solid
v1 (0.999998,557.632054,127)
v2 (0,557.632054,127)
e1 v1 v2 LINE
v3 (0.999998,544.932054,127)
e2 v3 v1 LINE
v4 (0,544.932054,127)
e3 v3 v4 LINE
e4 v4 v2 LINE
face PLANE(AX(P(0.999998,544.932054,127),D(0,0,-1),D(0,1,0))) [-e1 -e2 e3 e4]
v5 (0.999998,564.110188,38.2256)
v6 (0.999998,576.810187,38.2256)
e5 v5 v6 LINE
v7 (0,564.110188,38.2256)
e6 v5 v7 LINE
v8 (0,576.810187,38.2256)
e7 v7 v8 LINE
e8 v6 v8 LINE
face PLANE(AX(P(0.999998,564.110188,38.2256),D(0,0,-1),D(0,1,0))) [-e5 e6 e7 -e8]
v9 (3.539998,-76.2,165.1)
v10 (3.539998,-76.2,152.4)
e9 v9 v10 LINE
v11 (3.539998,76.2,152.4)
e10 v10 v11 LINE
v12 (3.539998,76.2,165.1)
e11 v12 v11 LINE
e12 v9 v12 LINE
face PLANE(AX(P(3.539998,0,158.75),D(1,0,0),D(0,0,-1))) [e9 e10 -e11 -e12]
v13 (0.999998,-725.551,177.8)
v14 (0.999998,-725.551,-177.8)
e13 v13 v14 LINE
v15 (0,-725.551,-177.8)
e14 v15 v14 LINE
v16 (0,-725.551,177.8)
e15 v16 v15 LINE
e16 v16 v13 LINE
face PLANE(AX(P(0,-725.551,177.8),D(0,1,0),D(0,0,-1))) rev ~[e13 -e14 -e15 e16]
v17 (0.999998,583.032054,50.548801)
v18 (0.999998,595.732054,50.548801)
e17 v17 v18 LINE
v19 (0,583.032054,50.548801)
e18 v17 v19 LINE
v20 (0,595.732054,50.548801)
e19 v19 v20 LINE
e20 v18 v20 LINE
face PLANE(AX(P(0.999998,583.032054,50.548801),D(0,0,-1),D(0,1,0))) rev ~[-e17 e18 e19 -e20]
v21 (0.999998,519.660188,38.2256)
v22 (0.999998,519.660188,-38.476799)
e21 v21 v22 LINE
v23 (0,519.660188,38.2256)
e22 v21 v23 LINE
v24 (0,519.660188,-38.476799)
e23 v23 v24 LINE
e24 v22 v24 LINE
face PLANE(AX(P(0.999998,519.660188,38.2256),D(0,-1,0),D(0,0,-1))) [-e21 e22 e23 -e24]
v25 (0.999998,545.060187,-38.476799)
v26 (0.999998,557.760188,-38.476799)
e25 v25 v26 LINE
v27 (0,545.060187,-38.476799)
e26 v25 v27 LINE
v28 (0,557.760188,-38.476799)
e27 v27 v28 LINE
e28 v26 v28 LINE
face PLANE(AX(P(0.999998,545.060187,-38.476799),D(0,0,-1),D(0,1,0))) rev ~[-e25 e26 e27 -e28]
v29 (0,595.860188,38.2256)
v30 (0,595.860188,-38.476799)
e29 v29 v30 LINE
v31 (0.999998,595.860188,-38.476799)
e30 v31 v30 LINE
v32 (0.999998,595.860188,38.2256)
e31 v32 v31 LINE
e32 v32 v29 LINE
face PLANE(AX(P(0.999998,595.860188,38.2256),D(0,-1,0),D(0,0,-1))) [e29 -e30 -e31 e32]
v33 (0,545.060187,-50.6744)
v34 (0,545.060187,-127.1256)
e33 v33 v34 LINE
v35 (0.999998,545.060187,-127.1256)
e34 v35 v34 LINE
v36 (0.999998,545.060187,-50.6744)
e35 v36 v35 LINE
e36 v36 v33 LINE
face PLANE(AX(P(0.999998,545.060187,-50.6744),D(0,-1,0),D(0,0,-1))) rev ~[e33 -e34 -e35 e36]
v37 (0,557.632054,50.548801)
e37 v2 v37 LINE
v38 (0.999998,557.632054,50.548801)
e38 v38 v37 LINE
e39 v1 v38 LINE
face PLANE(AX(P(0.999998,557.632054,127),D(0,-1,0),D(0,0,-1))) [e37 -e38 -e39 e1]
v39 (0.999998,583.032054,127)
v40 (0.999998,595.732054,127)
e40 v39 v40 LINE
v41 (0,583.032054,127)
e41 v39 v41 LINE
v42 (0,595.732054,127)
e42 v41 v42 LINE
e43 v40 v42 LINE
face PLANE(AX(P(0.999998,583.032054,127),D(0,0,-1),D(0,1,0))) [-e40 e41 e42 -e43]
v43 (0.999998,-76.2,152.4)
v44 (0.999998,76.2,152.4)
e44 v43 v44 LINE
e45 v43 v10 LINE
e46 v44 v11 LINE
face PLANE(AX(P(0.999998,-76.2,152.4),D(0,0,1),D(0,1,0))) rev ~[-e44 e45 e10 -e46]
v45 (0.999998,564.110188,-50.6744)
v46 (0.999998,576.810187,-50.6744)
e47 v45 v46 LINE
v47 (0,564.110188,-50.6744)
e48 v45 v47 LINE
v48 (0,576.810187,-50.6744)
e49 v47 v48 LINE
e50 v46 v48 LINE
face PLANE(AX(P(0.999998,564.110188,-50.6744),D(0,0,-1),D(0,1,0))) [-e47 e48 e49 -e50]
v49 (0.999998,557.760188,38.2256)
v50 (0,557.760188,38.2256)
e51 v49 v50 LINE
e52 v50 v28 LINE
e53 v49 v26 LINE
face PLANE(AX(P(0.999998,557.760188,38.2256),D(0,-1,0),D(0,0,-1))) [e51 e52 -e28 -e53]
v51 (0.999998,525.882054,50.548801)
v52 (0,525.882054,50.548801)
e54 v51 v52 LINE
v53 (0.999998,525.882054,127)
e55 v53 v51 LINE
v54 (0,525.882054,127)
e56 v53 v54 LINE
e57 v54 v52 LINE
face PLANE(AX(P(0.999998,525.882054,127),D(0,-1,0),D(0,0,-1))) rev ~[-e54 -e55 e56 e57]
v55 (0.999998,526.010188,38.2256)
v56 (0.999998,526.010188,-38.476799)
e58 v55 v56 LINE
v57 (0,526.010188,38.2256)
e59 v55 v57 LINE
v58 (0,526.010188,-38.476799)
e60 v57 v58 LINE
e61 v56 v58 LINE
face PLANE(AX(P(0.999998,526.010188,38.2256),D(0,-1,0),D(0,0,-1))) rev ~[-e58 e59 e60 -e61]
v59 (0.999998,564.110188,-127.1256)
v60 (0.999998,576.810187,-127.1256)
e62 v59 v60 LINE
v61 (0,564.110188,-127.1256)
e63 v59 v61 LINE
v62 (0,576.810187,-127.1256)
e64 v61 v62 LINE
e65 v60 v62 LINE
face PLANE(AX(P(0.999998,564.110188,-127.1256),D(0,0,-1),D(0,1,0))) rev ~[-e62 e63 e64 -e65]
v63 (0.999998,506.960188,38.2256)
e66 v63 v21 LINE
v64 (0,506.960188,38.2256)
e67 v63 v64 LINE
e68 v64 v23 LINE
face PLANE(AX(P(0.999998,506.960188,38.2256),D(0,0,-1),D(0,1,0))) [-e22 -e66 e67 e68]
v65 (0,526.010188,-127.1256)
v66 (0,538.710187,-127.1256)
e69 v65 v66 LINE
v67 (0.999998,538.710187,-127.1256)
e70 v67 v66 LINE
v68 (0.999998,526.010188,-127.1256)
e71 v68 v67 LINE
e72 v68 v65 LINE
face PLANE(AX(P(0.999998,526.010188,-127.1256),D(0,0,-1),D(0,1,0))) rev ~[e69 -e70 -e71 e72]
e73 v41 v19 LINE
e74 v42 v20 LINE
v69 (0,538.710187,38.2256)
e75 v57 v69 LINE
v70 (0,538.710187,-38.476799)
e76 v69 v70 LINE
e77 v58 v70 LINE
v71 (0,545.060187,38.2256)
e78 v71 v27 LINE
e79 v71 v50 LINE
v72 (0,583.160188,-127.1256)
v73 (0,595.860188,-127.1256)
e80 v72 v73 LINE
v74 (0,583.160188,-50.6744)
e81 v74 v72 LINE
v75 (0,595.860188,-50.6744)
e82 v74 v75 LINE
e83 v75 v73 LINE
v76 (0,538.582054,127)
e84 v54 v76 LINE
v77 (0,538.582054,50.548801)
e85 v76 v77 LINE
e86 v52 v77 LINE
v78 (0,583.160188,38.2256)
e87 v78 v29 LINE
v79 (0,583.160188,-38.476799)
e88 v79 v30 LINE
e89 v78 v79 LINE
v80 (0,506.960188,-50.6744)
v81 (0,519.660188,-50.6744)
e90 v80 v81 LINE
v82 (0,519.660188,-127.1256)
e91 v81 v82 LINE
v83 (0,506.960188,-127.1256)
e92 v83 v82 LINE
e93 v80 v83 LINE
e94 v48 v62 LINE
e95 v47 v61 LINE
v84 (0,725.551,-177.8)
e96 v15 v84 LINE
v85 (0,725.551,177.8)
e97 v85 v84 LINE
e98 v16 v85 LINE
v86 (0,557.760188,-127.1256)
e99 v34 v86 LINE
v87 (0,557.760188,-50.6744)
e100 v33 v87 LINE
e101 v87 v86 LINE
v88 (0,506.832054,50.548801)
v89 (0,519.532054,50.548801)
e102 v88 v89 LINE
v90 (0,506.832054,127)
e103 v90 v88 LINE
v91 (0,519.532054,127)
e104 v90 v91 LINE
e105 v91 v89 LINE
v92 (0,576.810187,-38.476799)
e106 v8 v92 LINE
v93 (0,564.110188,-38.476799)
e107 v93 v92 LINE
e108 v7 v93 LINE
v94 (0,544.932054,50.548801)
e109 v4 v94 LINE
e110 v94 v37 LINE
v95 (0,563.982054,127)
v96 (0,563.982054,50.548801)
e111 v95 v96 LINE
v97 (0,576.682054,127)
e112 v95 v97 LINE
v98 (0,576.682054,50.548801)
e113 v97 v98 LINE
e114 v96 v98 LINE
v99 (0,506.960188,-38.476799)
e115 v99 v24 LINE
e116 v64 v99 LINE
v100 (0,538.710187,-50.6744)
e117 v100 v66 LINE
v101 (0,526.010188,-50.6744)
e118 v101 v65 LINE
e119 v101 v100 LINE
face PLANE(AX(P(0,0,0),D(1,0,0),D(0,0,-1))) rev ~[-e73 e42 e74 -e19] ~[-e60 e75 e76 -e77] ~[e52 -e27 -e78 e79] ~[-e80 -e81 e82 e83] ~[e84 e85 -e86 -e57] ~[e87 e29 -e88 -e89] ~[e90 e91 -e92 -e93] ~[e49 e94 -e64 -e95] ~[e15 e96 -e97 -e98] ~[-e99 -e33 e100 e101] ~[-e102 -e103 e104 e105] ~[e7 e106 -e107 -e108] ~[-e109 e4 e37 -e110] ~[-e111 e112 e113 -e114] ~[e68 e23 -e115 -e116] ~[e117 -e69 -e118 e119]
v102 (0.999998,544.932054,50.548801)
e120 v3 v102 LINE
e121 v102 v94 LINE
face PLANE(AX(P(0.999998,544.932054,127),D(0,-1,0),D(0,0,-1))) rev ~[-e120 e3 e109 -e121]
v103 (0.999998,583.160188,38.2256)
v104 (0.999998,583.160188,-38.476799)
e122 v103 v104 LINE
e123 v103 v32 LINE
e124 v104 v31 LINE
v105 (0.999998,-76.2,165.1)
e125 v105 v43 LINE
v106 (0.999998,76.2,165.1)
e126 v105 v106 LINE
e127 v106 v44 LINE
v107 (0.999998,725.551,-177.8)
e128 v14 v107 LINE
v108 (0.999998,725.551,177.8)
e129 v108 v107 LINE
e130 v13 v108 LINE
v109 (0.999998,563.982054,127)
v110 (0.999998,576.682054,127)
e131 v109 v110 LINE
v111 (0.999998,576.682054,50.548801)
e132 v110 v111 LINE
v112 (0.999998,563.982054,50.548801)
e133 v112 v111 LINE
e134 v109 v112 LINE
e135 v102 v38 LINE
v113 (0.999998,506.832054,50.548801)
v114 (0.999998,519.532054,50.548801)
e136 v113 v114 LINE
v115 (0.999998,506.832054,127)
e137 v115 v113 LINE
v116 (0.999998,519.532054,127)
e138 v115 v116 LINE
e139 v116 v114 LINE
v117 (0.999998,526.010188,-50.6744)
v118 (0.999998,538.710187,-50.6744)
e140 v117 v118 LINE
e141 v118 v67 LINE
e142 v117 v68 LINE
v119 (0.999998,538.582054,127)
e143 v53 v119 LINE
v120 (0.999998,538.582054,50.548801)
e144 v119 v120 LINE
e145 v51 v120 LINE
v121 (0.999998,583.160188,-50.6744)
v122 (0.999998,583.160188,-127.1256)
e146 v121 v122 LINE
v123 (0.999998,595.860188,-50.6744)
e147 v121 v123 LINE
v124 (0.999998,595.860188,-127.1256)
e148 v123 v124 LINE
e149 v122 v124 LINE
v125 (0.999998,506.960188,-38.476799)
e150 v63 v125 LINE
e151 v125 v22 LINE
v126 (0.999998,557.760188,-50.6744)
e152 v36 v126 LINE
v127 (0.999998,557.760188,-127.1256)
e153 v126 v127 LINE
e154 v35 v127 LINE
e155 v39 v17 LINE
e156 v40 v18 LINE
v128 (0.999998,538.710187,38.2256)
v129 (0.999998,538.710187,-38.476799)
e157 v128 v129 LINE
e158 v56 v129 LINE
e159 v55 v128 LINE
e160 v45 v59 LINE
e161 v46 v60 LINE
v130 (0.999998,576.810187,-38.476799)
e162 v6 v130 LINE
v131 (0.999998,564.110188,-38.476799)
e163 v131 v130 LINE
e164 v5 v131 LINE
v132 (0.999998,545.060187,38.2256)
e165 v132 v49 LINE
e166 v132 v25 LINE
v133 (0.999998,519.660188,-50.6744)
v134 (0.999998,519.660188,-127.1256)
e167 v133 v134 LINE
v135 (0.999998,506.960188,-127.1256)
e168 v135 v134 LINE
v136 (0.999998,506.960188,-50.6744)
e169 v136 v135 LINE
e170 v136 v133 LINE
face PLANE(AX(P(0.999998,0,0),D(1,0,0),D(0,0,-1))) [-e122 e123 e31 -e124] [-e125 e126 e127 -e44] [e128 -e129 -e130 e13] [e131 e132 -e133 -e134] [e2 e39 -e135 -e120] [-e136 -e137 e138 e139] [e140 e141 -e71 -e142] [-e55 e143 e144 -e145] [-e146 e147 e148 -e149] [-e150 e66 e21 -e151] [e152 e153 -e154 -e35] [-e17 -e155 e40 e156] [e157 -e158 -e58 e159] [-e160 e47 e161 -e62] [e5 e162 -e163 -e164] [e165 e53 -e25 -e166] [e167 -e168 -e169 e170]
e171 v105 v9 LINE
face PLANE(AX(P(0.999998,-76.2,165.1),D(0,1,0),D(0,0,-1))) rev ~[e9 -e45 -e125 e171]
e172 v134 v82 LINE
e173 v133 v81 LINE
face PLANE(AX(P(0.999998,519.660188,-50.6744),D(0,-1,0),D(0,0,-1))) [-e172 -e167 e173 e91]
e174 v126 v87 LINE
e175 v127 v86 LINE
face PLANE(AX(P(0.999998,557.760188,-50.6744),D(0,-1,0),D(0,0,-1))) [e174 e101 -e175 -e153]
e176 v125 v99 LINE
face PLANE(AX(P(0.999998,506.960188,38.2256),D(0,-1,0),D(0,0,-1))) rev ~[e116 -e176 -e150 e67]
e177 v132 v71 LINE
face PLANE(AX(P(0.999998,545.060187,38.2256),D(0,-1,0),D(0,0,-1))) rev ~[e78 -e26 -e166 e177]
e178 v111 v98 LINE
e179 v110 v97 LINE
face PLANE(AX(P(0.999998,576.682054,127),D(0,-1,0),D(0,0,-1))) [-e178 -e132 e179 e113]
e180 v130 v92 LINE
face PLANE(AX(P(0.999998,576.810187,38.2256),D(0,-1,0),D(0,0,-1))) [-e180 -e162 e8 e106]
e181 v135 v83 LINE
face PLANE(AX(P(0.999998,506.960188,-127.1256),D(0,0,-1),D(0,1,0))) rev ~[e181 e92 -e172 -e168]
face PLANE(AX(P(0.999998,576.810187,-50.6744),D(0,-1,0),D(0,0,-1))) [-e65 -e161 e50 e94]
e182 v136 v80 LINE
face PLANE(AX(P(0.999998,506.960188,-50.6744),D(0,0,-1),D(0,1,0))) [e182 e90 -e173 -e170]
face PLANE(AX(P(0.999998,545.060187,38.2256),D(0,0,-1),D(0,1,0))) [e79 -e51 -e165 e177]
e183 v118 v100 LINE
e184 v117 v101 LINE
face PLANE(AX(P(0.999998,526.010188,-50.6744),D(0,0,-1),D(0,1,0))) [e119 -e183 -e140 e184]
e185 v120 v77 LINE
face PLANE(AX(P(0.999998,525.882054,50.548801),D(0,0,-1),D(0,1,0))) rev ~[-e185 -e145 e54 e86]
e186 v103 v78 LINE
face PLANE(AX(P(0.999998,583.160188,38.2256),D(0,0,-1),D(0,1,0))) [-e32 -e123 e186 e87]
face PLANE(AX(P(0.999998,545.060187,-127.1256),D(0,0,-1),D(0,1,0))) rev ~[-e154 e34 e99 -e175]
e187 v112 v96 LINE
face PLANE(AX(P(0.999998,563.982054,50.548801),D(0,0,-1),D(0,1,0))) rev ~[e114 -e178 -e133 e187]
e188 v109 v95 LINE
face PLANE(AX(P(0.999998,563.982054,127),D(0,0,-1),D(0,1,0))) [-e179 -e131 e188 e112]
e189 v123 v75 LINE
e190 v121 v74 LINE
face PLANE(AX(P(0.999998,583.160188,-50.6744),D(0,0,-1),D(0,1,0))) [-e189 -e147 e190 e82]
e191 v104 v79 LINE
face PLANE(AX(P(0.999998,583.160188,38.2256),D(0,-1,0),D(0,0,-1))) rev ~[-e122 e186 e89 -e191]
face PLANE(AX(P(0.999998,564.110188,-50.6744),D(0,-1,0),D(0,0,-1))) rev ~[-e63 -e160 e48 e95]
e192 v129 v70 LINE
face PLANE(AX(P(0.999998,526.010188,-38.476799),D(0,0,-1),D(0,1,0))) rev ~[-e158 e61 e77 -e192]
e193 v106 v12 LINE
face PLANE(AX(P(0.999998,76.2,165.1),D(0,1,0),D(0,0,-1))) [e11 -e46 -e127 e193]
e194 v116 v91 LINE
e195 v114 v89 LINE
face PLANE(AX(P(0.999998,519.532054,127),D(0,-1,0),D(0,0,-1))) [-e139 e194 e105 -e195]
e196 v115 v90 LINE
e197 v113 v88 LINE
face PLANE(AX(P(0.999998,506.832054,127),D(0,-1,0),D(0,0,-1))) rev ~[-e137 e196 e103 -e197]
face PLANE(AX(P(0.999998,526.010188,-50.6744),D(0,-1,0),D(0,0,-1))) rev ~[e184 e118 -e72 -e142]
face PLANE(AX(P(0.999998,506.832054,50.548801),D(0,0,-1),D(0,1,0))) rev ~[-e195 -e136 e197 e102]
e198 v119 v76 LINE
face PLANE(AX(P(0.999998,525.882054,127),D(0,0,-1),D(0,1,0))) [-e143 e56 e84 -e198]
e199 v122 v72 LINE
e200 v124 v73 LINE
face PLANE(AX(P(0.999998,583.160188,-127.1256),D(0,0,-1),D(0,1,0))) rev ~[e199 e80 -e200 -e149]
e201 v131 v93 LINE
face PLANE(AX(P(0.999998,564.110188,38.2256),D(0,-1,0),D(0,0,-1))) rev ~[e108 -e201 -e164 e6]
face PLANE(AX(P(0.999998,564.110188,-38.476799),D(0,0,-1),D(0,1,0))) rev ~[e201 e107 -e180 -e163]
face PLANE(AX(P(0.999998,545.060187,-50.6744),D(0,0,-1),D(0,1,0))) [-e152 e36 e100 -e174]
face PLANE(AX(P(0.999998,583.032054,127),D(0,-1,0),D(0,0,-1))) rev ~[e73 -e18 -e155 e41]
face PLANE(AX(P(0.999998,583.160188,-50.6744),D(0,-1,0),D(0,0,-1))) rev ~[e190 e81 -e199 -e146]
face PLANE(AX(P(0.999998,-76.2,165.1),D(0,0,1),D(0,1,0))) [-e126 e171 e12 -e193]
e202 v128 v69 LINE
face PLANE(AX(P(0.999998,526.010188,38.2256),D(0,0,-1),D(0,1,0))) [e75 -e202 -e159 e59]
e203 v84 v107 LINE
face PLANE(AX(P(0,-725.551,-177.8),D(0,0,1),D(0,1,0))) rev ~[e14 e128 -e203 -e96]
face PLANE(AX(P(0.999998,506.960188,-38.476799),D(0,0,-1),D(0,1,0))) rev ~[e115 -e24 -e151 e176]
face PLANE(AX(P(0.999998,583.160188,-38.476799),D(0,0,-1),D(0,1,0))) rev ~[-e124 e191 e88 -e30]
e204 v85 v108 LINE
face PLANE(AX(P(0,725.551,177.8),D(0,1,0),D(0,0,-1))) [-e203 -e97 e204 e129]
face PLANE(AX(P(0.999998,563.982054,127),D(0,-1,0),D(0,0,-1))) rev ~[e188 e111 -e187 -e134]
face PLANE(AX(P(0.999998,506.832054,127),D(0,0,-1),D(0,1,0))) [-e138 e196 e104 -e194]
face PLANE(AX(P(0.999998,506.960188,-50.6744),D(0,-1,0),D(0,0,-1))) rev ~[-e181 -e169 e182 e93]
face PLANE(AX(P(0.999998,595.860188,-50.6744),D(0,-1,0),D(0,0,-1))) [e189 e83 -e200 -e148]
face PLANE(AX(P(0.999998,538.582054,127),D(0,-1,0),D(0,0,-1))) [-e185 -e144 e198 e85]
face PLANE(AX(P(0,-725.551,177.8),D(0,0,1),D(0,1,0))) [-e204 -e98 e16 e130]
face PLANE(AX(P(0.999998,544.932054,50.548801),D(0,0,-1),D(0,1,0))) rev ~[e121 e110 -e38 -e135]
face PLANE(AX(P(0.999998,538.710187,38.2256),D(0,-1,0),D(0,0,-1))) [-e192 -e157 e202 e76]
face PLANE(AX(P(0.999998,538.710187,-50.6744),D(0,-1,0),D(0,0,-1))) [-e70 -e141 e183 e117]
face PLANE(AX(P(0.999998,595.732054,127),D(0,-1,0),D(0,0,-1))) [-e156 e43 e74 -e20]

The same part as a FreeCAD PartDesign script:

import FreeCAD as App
import Part
import Sketcher
from FreeCAD import Vector
Q = App.Units.Quantity

doc = App.newDocument("Part")
body = doc.addObject("PartDesign::Body", "Body")

sketch1 = body.newObject("Sketcher::SketchObject", "Sketch")
sketch1.AttachmentSupport = (doc.getObject("YZ_Plane"), [""])
sketch1.MapMode = "FlatFace"
sketch1.addGeometry([
    Part.LineSegment(Vector(726, 178, 0), Vector(-726, 178, 0)),
    Part.LineSegment(Vector(-726, 178, 0), Vector(-726, -178, 0)),
    Part.LineSegment(Vector(-726, -178, 0), Vector(726, -178, 0)),
    Part.LineSegment(Vector(726, -178, 0), Vector(726, 178, 0)),
], False)
sketch1.addConstraint([
    Sketcher.Constraint("Coincident", 0, 2, 1, 1),
    Sketcher.Constraint("Coincident", 1, 2, 2, 1),
    Sketcher.Constraint("Coincident", 2, 2, 3, 1),
    Sketcher.Constraint("Coincident", 3, 2, 0, 1),
    Sketcher.Constraint("Horizontal", 0),
    Sketcher.Constraint("Vertical", 1),
    Sketcher.Constraint("Horizontal", 2),
    Sketcher.Constraint("Vertical", 3),
    Sketcher.Constraint("Symmetric", 0, 2, 2, 2, -1, 1),
    Sketcher.Constraint("DistanceY", 1, 2, 1, 1, Q("14 in")),
    Sketcher.Constraint("DistanceX", 0, 2, 0, 1, Q("57.13 in")),
])
pad1 = body.newObject("PartDesign::Pad", "Pad")
pad1.Profile = sketch1
pad1.Length = 0.999998

sketch2 = body.newObject("Sketcher::SketchObject", "Sketch001")
sketch2.AttachmentSupport = (doc.getObject("YZ_Plane"), [""])
sketch2.MapMode = "FlatFace"
sketch2.AttachmentOffset = App.Placement(Vector(0, 0, 0.999998), App.Rotation())
sketch2.addGeometry([
    Part.LineSegment(Vector(596, 127, 0), Vector(583, 127, 0)),
    Part.LineSegment(Vector(583, 127, 0), Vector(583, 51, 0)),
    Part.LineSegment(Vector(583, 51, 0), Vector(596, 51, 0)),
    Part.LineSegment(Vector(596, 51, 0), Vector(596, 127, 0)),
    Part.LineSegment(Vector(596, 38, 0), Vector(583, 38, 0)),
    Part.LineSegment(Vector(583, 38, 0), Vector(583, -38, 0)),
    Part.LineSegment(Vector(583, -38, 0), Vector(596, -38, 0)),
    Part.LineSegment(Vector(596, -38, 0), Vector(596, 38, 0)),
    Part.LineSegment(Vector(596, -51, 0), Vector(583, -51, 0)),
    Part.LineSegment(Vector(583, -51, 0), Vector(583, -127, 0)),
    Part.LineSegment(Vector(583, -127, 0), Vector(596, -127, 0)),
    Part.LineSegment(Vector(596, -127, 0), Vector(596, -51, 0)),
], False)
sketch2.addConstraint([
    Sketcher.Constraint("Coincident", 0, 2, 1, 1),
    Sketcher.Constraint("Coincident", 1, 2, 2, 1),
    Sketcher.Constraint("Coincident", 2, 2, 3, 1),
    Sketcher.Constraint("Coincident", 3, 2, 0, 1),
    Sketcher.Constraint("Coincident", 4, 2, 5, 1),
    Sketcher.Constraint("Coincident", 5, 2, 6, 1),
    Sketcher.Constraint("Coincident", 6, 2, 7, 1),
    Sketcher.Constraint("Coincident", 7, 2, 4, 1),
    Sketcher.Constraint("Coincident", 8, 2, 9, 1),
    Sketcher.Constraint("Coincident", 9, 2, 10, 1),
    Sketcher.Constraint("Coincident", 10, 2, 11, 1),
    Sketcher.Constraint("Coincident", 11, 2, 8, 1),
    Sketcher.Constraint("Horizontal", 0),
    Sketcher.Constraint("Vertical", 1),
    Sketcher.Constraint("Horizontal", 2),
    Sketcher.Constraint("Vertical", 3),
    Sketcher.Constraint("Horizontal", 4),
    Sketcher.Constraint("Vertical", 5),
    Sketcher.Constraint("Horizontal", 6),
    Sketcher.Constraint("Vertical", 7),
    Sketcher.Constraint("Horizontal", 8),
    Sketcher.Constraint("Vertical", 9),
    Sketcher.Constraint("Horizontal", 10),
    Sketcher.Constraint("Vertical", 11),
    Sketcher.Constraint("Vertical", 5, 2, 8, 2),
    Sketcher.Constraint("Vertical", 7, 2, 10, 2),
    Sketcher.Constraint("Equal", 2, 4),
    Sketcher.Constraint("Equal", 3, 9),
    Sketcher.Constraint("DistanceX", 0, 2, 0, 1, Q("0.5 in")),
    Sketcher.Constraint("DistanceY", -1, 1, 0, 2, Q("5 in")),
    Sketcher.Constraint("DistanceY", 8, 2, 4, 2, Q("3.5 in")),
    Sketcher.Constraint("DistanceY", 1, 2, 1, 1, Q("76.451199 mm")),
    Sketcher.Constraint("DistanceY", 5, 2, 5, 1, Q("76.702398 mm")),
    Sketcher.Constraint("DistanceY", -1, 1, 4, 2, Q("38.2256 mm")),
    Sketcher.Constraint("DistanceX", -1, 1, 0, 2, Q("583.032054 mm")),
    Sketcher.Constraint("DistanceX", -1, 1, 4, 2, Q("583.160188 mm")),
])
pocket1 = body.newObject("PartDesign::Pocket", "Pocket")
pocket1.Profile = sketch2
pocket1.Type = "ThroughAll"
doc.recompute()

linearpattern = body.newObject("PartDesign::LinearPattern", "LinearPattern")
linearpattern.Originals = [pocket1]
linearpattern.Direction = (doc.getObject("Y_Axis"), [""])
linearpattern.Mode = "offset"
linearpattern.Offset = Q("0.75 in")
linearpattern.Occurrences = 5
linearpattern.Reversed = True
body.Tip = linearpattern

sketch3 = body.newObject("Sketcher::SketchObject", "Sketch002")
sketch3.AttachmentSupport = (doc.getObject("YZ_Plane"), [""])
sketch3.MapMode = "FlatFace"
sketch3.AttachmentOffset = App.Placement(Vector(0, 0, 0.999998), App.Rotation())
sketch3.addGeometry([
    Part.LineSegment(Vector(76, 165, 0), Vector(-76, 165, 0)),
    Part.LineSegment(Vector(-76, 165, 0), Vector(-76, 152, 0)),
    Part.LineSegment(Vector(-76, 152, 0), Vector(76, 152, 0)),
    Part.LineSegment(Vector(76, 152, 0), Vector(76, 165, 0)),
], False)
sketch3.addConstraint([
    Sketcher.Constraint("Coincident", 0, 2, 1, 1),
    Sketcher.Constraint("Coincident", 1, 2, 2, 1),
    Sketcher.Constraint("Coincident", 2, 2, 3, 1),
    Sketcher.Constraint("Coincident", 3, 2, 0, 1),
    Sketcher.Constraint("Horizontal", 0),
    Sketcher.Constraint("Vertical", 1),
    Sketcher.Constraint("Horizontal", 2),
    Sketcher.Constraint("Vertical", 3),
    Sketcher.Constraint("DistanceX", 0, 2, 0, 1, Q("6 in")),
    Sketcher.Constraint("DistanceY", 1, 2, 1, 1, Q("0.5 in")),
    Sketcher.Constraint("DistanceX", 0, 2, -1, 1, Q("3 in")),
    Sketcher.Constraint("DistanceY", -1, 1, 1, 2, Q("6 in")),
])
pad2 = body.newObject("PartDesign::Pad", "Pad001")
pad2.Profile = sketch3
pad2.Length = Q("0.1 in")

doc.recompute()
